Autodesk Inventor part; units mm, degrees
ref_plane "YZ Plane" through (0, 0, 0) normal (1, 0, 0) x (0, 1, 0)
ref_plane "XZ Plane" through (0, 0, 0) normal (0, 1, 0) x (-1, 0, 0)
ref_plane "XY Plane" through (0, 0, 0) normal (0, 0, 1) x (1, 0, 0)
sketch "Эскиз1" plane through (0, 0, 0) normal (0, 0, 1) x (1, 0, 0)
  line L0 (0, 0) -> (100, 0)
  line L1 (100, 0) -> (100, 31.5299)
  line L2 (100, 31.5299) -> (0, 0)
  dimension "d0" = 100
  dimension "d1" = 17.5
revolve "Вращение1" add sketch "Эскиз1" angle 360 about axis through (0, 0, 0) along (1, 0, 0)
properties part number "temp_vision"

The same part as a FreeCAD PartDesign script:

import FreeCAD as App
import Part
import Sketcher

V = App.Vector
Q = App.Units.Quantity


def add_polygon(sketch, points):
    """Adds a closed chain of lines whose ends are joined by coincident constraints."""
    first, n = sketch.GeometryCount, len(points)
    for a, b in zip(points, points[1:] + points[:1]):
        sketch.addGeometry(Part.LineSegment(App.Vector(*a, 0), App.Vector(*b, 0)), False)
    for i in range(n):
        sketch.addConstraint(Sketcher.Constraint("Coincident", first + i, 2, first + (i + 1) % n, 1))

doc = App.newDocument("Part")
body = doc.addObject("PartDesign::Body", "Body")

sketch1 = doc.addObject("Sketcher::SketchObject", "Sketch")
body.addObject(sketch1)
sketch1.AttachmentSupport = (doc.XY_Plane, [""])
sketch1.MapMode = "FlatFace"
add_polygon(sketch1, [(100, 32), (0, 0), (100, 0)])
sketch1.addConstraint([
    Sketcher.Constraint("Horizontal", 1),
    Sketcher.Constraint("Vertical", 2),
    Sketcher.Constraint("Coincident", 0, 2, -1, 1),
    Sketcher.Constraint("DistanceX", 1, 1, 1, 2, Q("3.937 in")),
    Sketcher.Constraint("Angle", 0, Q("-162.5 deg")),
])
revolution = doc.addObject("PartDesign::Revolution", "Revolution")
body.addObject(revolution)
revolution.Profile = sketch1
revolution.ReferenceAxis = (sketch1, ["H_Axis"])
revolution.Angle = 360

doc.recompute()
